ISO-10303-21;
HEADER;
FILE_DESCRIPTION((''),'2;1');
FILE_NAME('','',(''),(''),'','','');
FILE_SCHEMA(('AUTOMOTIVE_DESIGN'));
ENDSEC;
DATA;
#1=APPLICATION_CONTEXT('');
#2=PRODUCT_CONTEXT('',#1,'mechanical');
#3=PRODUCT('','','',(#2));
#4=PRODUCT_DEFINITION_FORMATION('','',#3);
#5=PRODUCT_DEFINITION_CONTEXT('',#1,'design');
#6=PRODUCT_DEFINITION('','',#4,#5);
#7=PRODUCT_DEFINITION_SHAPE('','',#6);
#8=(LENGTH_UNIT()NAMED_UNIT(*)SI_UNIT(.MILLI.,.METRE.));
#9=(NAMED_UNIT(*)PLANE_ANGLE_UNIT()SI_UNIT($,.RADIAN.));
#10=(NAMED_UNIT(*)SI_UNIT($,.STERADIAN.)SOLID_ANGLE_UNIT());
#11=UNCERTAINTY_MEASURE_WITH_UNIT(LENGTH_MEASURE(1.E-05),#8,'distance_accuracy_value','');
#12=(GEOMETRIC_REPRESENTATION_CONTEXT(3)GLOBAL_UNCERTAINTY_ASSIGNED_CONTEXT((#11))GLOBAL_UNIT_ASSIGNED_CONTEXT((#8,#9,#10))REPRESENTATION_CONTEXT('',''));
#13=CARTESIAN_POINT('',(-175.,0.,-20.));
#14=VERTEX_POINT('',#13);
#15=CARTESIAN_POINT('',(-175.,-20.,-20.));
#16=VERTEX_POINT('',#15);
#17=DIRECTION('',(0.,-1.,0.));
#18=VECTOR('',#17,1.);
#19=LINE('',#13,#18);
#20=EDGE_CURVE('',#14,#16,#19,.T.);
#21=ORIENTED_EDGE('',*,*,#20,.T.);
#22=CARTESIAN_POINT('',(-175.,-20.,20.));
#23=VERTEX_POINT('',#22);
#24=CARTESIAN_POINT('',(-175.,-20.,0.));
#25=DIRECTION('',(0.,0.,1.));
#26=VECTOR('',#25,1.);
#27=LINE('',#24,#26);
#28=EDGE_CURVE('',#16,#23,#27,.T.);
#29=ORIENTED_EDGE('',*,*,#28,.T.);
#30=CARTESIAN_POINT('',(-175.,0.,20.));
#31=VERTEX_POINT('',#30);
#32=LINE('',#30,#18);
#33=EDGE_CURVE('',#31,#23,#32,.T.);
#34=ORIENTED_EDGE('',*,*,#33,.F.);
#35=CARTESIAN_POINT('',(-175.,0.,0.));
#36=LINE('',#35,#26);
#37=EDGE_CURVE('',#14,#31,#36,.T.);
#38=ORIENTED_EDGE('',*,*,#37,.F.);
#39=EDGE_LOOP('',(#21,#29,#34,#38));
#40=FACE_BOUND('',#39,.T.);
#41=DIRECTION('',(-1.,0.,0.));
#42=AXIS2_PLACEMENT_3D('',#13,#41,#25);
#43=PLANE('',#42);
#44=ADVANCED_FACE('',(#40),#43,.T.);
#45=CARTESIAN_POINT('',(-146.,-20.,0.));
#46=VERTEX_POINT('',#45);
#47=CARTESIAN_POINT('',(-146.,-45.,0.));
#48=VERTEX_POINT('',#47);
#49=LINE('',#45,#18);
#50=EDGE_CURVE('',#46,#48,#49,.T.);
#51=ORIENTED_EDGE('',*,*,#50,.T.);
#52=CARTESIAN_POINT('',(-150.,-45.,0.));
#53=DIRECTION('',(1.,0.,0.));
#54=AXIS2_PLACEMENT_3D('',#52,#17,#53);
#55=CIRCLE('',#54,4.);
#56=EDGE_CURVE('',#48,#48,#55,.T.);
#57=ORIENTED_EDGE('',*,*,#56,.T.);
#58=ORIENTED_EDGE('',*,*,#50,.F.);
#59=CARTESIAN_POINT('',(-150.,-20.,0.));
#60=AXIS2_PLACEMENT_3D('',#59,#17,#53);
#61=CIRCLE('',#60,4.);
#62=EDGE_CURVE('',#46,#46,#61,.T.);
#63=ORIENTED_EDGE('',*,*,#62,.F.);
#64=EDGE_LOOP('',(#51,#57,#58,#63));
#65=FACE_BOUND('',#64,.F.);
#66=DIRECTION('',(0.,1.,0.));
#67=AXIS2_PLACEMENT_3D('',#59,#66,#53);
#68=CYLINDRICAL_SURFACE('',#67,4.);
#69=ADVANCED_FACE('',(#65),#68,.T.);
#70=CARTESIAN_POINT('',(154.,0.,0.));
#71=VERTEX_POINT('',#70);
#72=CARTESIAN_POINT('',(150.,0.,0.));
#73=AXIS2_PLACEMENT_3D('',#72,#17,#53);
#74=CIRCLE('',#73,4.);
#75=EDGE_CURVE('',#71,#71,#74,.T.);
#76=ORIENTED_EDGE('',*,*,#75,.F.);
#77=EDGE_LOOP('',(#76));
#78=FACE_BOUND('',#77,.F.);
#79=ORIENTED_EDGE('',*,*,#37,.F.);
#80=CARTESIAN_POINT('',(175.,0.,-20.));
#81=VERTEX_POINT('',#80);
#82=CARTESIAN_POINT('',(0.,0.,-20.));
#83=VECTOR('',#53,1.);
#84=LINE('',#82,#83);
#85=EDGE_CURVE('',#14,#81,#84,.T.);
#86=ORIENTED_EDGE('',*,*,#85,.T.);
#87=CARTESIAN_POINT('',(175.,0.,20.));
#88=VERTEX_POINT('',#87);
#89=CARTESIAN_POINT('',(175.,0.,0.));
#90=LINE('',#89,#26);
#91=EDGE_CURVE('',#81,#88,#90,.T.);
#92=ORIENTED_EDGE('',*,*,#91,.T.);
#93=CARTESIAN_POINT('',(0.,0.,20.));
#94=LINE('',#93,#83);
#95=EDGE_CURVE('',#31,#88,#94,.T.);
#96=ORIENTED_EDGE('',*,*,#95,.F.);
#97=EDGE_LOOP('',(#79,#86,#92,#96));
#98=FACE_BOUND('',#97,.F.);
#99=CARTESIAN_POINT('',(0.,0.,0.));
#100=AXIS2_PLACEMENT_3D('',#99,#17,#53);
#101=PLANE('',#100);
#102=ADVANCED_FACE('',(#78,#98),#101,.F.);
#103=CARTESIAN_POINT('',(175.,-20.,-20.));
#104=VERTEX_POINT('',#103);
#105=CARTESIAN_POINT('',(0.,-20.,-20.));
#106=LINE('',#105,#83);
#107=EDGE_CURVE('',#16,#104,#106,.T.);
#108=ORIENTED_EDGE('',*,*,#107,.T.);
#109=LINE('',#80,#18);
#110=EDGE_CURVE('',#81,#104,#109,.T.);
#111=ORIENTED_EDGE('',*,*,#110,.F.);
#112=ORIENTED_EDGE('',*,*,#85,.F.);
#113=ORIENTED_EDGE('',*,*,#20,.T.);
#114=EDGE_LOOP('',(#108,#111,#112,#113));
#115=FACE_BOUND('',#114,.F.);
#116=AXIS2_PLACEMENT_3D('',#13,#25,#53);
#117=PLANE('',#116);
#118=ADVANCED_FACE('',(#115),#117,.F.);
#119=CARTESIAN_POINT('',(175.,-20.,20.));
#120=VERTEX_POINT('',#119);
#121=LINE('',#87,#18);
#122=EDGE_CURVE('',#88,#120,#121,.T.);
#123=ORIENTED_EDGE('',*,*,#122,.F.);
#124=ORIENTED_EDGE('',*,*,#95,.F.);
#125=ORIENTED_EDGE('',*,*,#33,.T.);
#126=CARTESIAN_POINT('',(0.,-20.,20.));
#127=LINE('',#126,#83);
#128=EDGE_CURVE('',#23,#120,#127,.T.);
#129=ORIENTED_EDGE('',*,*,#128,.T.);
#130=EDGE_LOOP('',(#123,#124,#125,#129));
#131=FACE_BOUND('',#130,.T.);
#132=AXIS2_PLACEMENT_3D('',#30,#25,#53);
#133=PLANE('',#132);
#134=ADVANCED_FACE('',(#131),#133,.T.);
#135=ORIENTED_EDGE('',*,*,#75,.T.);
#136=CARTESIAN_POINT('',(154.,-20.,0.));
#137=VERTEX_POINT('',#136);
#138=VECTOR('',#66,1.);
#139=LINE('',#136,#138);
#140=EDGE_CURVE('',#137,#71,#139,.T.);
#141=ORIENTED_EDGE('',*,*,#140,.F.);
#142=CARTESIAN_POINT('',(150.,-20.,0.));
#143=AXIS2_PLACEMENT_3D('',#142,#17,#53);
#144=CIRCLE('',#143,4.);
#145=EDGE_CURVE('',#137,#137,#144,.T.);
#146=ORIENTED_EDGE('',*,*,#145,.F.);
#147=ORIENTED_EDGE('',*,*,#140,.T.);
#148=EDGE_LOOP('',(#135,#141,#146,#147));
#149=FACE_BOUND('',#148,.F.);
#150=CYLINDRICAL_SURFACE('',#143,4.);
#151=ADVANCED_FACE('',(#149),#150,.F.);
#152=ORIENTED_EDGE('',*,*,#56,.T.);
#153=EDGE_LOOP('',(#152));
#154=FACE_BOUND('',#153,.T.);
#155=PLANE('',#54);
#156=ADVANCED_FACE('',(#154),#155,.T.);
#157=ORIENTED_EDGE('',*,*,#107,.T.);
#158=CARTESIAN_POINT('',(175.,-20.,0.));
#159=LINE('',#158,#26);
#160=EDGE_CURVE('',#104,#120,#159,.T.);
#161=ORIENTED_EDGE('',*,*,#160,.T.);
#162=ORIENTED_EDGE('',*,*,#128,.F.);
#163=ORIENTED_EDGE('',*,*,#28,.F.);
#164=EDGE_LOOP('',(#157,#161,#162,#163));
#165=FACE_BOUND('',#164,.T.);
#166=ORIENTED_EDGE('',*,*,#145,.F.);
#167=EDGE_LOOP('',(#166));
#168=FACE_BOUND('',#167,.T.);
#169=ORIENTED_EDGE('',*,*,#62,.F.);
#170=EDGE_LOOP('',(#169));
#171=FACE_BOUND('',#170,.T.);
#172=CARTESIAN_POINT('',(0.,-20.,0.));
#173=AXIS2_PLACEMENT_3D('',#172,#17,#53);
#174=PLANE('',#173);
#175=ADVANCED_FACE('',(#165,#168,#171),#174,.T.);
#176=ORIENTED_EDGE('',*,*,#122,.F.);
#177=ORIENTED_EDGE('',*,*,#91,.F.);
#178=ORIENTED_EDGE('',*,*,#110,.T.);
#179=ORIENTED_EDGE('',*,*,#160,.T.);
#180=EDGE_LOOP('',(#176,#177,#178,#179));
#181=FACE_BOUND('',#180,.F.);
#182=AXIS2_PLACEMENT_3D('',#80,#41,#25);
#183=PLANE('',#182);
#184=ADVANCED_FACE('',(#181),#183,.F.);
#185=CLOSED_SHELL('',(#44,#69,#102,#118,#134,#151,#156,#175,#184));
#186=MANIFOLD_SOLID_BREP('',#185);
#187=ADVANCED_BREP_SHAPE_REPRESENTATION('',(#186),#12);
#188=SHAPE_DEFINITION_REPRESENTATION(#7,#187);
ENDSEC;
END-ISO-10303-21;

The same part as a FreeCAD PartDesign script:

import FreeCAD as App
import Part
import Sketcher

V = App.Vector
Q = App.Units.Quantity

doc = App.newDocument("Part")
params = doc.addObject("Spreadsheet::Sheet", "Params")
for row, (alias, value) in enumerate([
    ("sketch1_width", "350 mm"),
    ("sketch1_height", "40 mm"),
    ("pad1_length", "20 mm"),
    ("sketch2_diameter", "8 mm"),
    ("pad2_length", "25 mm"),
    ("sketch3_diameter", "8 mm"),
    ("pocket1_length", "25 mm"),
], start=1):
    params.set(f"A{row}", alias)
    params.set(f"B{row}", "=" + value)
    params.setAlias(f"B{row}", alias)

body = doc.addObject("PartDesign::Body", "Body")

sketch1 = doc.addObject("Sketcher::SketchObject", "Sketch")
body.addObject(sketch1)
sketch1.AttachmentSupport = (doc.XZ_Plane, [""])
sketch1.MapMode = "FlatFace"
sketch1.addGeometry([
    Part.LineSegment(V(-175, 20, 0), V(-175, -20, 0)),
    Part.LineSegment(V(-175, -20, 0), V(175, -20, 0)),
    Part.LineSegment(V(175, -20, 0), V(175, 20, 0)),
    Part.LineSegment(V(175, 20, 0), V(-175, 20, 0)),
], False)
sketch1.addConstraint([
    Sketcher.Constraint("Coincident", 0, 2, 1, 1),
    Sketcher.Constraint("Coincident", 1, 2, 2, 1),
    Sketcher.Constraint("Coincident", 2, 2, 3, 1),
    Sketcher.Constraint("Coincident", 3, 2, 0, 1),
    Sketcher.Constraint("Vertical", 0),
    Sketcher.Constraint("Horizontal", 1),
    Sketcher.Constraint("Vertical", 2),
    Sketcher.Constraint("Horizontal", 3),
    Sketcher.Constraint("Symmetric", 0, 2, 2, 2, -1, 1),
    Sketcher.Constraint("DistanceX", 1, 1, 1, 2, Q("350 mm")),
    Sketcher.Constraint("DistanceY", 0, 2, 0, 1, Q("40 mm")),
])
sketch1.setExpression("Constraints[9]", "Params.sketch1_width")
sketch1.setExpression("Constraints[10]", "Params.sketch1_height")
pad1 = doc.addObject("PartDesign::Pad", "Pad")
body.addObject(pad1)
pad1.Profile = sketch1
pad1.setExpression("Length", "Params.pad1_length")

sketch2 = doc.addObject("Sketcher::SketchObject", "Sketch001")
body.addObject(sketch2)
sketch2.AttachmentSupport = (doc.XZ_Plane, [""])
sketch2.MapMode = "FlatFace"
sketch2.AttachmentOffset = App.Placement(V(0, 0, 20), App.Rotation())
sketch2.addGeometry(Part.Circle(V(-150, 0, 0), V(0, 0, 1), 4), False)
sketch2.addConstraint([
    Sketcher.Constraint("PointOnObject", 0, 3, -1),
    Sketcher.Constraint("Diameter", 0, Q("8 mm")),
    Sketcher.Constraint("DistanceX", 0, 3, -1, 1, Q("150 mm")),
])
sketch2.setExpression("Constraints[1]", "Params.sketch2_diameter")
pad2 = doc.addObject("PartDesign::Pad", "Pad001")
body.addObject(pad2)
pad2.Profile = sketch2
pad2.setExpression("Length", "Params.pad2_length")

sketch3 = doc.addObject("Sketcher::SketchObject", "Sketch002")
body.addObject(sketch3)
sketch3.AttachmentSupport = (doc.XZ_Plane, [""])
sketch3.MapMode = "FlatFace"
sketch3.AttachmentOffset = App.Placement(V(0, 0, 20), App.Rotation())
sketch3.addGeometry(Part.Circle(V(150, 0, 0), V(0, 0, 1), 4), False)
sketch3.addConstraint([
    Sketcher.Constraint("PointOnObject", 0, 3, -1),
    Sketcher.Constraint("Diameter", 0, Q("8 mm")),
    Sketcher.Constraint("DistanceX", -1, 1, 0, 3, Q("150 mm")),
])
sketch3.setExpression("Constraints[1]", "Params.sketch3_diameter")
pocket1 = doc.addObject("PartDesign::Pocket", "Pocket")
body.addObject(pocket1)
pocket1.Profile = sketch3
pocket1.setExpression("Length", "Params.pocket1_length")

doc.recompute()
